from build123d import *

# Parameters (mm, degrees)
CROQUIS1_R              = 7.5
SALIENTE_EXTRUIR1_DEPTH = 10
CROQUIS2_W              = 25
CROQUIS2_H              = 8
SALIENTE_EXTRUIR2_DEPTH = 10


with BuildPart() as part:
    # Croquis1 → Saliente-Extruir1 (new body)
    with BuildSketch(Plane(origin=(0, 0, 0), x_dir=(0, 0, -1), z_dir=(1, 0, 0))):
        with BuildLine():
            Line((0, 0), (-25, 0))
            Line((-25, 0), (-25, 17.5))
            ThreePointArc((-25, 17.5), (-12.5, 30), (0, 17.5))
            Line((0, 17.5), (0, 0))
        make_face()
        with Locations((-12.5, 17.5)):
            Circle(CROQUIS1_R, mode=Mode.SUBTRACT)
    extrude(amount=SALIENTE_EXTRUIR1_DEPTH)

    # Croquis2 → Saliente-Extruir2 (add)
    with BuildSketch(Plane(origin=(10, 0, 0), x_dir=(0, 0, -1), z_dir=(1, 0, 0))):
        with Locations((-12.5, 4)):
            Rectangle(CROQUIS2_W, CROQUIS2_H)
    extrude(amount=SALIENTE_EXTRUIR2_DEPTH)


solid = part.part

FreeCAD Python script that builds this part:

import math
import FreeCAD as App
import Part
import Sketcher
from FreeCAD import Vector

doc = App.newDocument("Part")
params = doc.addObject("Spreadsheet::Sheet", "Params")
for row, (alias, value) in enumerate([
    ("sketch1_diameter", "15 mm"),
    ("sketch1_radius", "12.5 mm"),
    ("sketch1_width", "17.5 mm"),
    ("pad1_length", "10 mm"),
    ("sketch2_width", "8 mm"),
    ("sketch2_height", "25 mm"),
    ("pad2_length", "10 mm"),
], start=1):
    params.set(f"A{row}", alias)
    params.set(f"B{row}", "=" + value)
    params.setAlias(f"B{row}", alias)

body = doc.addObject("PartDesign::Body", "Body")

# Sketch on YZ plane
sketch1 = doc.addObject("Sketcher::SketchObject", "Sketch")
body.addObject(sketch1)
sketch1.AttachmentSupport = (doc.YZ_Plane, [""])
sketch1.MapMode = "FlatFace"
sketch1.addGeometry([
    Part.LineSegment(Vector(0, 25, 0), Vector(0, 0, 0)),  # 0
    Part.LineSegment(Vector(0, 0, 0), Vector(18, 0, 0)),  # 1
    Part.ArcOfCircle(Part.Circle(Vector(18, 12, 0), Vector(0, 0, 1), 12), math.radians(-90), math.radians(90)),  # 2
    Part.LineSegment(Vector(18, 25, 0), Vector(0, 25, 0)),  # 3
    Part.Circle(Vector(18, 12, 0), Vector(0, 0, 1), 8),  # 4
], False)
sketch1.addConstraint([
    Sketcher.Constraint("Coincident", 0, 2, 1, 1),
    Sketcher.Constraint("Tangent", 1, 2, 2, 1),
    Sketcher.Constraint("Tangent", 2, 2, 3, 1),
    Sketcher.Constraint("Coincident", 3, 2, 0, 1),
    Sketcher.Constraint("Vertical", 0),
    Sketcher.Constraint("Horizontal", 1),
    Sketcher.Constraint("Horizontal", 3),
    Sketcher.Constraint("Coincident", 0, 2, -1, 1),
    Sketcher.Constraint("Coincident", 4, 3, 2, 3),
    Sketcher.Constraint("Diameter", 4, 15.0),
    Sketcher.Constraint("Radius", 2, 12.5),
    Sketcher.Constraint("DistanceX", 1, 1, 1, 2, 17.5),
])
sketch1.setExpression("Constraints[9]", "Params.sketch1_diameter")
sketch1.setExpression("Constraints[10]", "Params.sketch1_radius")
sketch1.setExpression("Constraints[11]", "Params.sketch1_width")
pad1 = doc.addObject("PartDesign::Pad", "Pad")
body.addObject(pad1)
pad1.Profile = sketch1
pad1.setExpression("Length", "Params.pad1_length")

# Sketch on YZ plane
sketch2 = doc.addObject("Sketcher::SketchObject", "Sketch001")
body.addObject(sketch2)
sketch2.AttachmentSupport = (doc.YZ_Plane, [""])
sketch2.MapMode = "FlatFace"
sketch2.AttachmentOffset = App.Placement(Vector(0, 0, 10), App.Rotation())
sketch2.addGeometry([
    Part.LineSegment(Vector(8, 25, 0), Vector(0, 25, 0)),
    Part.LineSegment(Vector(0, 25, 0), Vector(0, 0, 0)),
    Part.LineSegment(Vector(0, 0, 0), Vector(8, 0, 0)),
    Part.LineSegment(Vector(8, 0, 0), Vector(8, 25, 0)),
], False)
sketch2.addConstraint([
    Sketcher.Constraint("Coincident", 0, 2, 1, 1),
    Sketcher.Constraint("Coincident", 1, 2, 2, 1),
    Sketcher.Constraint("Coincident", 2, 2, 3, 1),
    Sketcher.Constraint("Coincident", 3, 2, 0, 1),
    Sketcher.Constraint("Horizontal", 0),
    Sketcher.Constraint("Vertical", 1),
    Sketcher.Constraint("Horizontal", 2),
    Sketcher.Constraint("Vertical", 3),
    Sketcher.Constraint("Coincident", 1, 2, -1, 1),
    Sketcher.Constraint("DistanceX", 0, 2, 0, 1, 8.0),
    Sketcher.Constraint("DistanceY", 1, 2, 1, 1, 25.0),
])
sketch2.setExpression("Constraints[9]", "Params.sketch2_width")
sketch2.setExpression("Constraints[10]", "Params.sketch2_height")
pad2 = doc.addObject("PartDesign::Pad", "Pad001")
body.addObject(pad2)
pad2.Profile = sketch2
pad2.setExpression("Length", "Params.pad2_length")

doc.recompute()
